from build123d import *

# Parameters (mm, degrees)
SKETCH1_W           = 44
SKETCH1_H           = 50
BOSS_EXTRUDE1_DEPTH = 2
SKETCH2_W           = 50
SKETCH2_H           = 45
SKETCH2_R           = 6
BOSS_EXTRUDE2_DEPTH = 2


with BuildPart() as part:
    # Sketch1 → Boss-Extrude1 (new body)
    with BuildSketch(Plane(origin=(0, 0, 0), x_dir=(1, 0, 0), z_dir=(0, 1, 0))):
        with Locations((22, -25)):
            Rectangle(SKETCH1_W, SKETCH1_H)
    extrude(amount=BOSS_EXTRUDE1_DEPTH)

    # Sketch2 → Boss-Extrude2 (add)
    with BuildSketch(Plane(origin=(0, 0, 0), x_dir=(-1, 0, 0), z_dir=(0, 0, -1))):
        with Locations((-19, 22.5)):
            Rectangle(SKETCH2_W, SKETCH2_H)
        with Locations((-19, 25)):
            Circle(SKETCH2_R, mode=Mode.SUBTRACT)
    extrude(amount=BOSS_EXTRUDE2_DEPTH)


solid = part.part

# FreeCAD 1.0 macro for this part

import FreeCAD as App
import Part
import Sketcher
Q = App.Units.Quantity


def add_polygon(sketch, points):
    """Adds a closed chain of lines whose ends are joined by coincident constraints."""
    first, n = sketch.GeometryCount, len(points)
    for a, b in zip(points, points[1:] + points[:1]):
        sketch.addGeometry(Part.LineSegment(App.Vector(*a, 0), App.Vector(*b, 0)), False)
    for i in range(n):
        sketch.addConstraint(Sketcher.Constraint("Coincident", first + i, 2, first + (i + 1) % n, 1))

doc = App.newDocument("Part")
body = doc.addObject("PartDesign::Body", "Body")

# Sketch on XZ plane
sketch1 = body.newObject("Sketcher::SketchObject", "Sketch")
sketch1.AttachmentSupport = (doc.getObject("XZ_Plane"), [""])
sketch1.MapMode = "FlatFace"
add_polygon(sketch1, [(0, 0), (0, 50), (44, 50), (44, 0)])  # lines 0-3
sketch1.addConstraint([
    Sketcher.Constraint("Vertical", 0),
    Sketcher.Constraint("Horizontal", 1),
    Sketcher.Constraint("Vertical", 2),
    Sketcher.Constraint("Horizontal", 3),
    Sketcher.Constraint("Coincident", 3, 2, -1, 1),
    Sketcher.Constraint("DistanceX", 1, 1, 1, 2, Q("44 mm")),
    Sketcher.Constraint("DistanceY", 0, 1, 0, 2, Q("50 mm")),
])
pad1 = body.newObject("PartDesign::Pad", "Pad")
pad1.Profile = sketch1
pad1.Length = 2
pad1.Reversed = True

# Sketch on XY plane
sketch2 = body.newObject("Sketcher::SketchObject", "Sketch001")
sketch2.AttachmentSupport = (doc.getObject("XY_Plane"), [""])
sketch2.MapMode = "FlatFace"
add_polygon(sketch2, [(44, 45), (44, 0), (-6, 0), (-6, 45)])  # lines 0-3
sketch2.addGeometry(Part.Circle(App.Vector(19, 25, 0), App.Vector(0, 0, 1), 6), False)  # 4
sketch2.addConstraint([
    Sketcher.Constraint("Vertical", 0),
    Sketcher.Constraint("Horizontal", 1),
    Sketcher.Constraint("Vertical", 2),
    Sketcher.Constraint("Horizontal", 3),
    Sketcher.Constraint("PointOnObject", 0, 2, -1),
    Sketcher.Constraint("Diameter", 4, Q("12 mm")),
    Sketcher.Constraint("DistanceX", 1, 2, 1, 1, Q("50 mm")),
    Sketcher.Constraint("DistanceY", 0, 2, 0, 1, Q("45 mm")),
    Sketcher.Constraint("DistanceX", -1, 1, 4, 3, Q("19 mm")),
    Sketcher.Constraint("DistanceY", -1, 1, 4, 3, Q("25 mm")),
    Sketcher.Constraint("DistanceX", -1, 1, 0, 2, Q("44 mm")),
])
pad2 = body.newObject("PartDesign::Pad", "Pad001")
pad2.Profile = sketch2
pad2.Length = 2
pad2.Reversed = True

doc.recompute()
